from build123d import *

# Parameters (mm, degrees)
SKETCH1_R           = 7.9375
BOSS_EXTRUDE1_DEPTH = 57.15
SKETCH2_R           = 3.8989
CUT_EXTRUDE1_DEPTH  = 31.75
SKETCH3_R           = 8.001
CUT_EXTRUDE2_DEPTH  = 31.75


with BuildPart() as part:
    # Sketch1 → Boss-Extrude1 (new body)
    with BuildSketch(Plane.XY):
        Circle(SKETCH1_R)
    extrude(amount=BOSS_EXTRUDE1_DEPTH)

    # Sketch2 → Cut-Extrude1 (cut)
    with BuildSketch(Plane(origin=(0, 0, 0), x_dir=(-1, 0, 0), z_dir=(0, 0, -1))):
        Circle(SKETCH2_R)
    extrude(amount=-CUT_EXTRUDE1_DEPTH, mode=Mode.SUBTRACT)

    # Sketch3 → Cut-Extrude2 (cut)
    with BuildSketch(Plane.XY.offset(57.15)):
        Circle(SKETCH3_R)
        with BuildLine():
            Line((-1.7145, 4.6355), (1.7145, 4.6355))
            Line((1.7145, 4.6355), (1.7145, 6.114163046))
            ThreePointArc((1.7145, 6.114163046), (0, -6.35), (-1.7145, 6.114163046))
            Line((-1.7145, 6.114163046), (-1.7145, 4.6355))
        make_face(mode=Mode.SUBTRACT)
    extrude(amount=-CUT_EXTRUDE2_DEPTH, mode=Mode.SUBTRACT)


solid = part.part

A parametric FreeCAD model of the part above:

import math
import FreeCAD as App
import Part
import Sketcher
from FreeCAD import Vector
Q = App.Units.Quantity

doc = App.newDocument("Part")
body = doc.addObject("PartDesign::Body", "Body")

sketch1 = doc.addObject("Sketcher::SketchObject", "Sketch")
body.addObject(sketch1)
sketch1.AttachmentSupport = (doc.XY_Plane, [""])
sketch1.MapMode = "FlatFace"
sketch1.addGeometry(Part.Circle(Vector(0, 0, 0), Vector(0, 0, 1), 8), False)
sketch1.addConstraint([
    Sketcher.Constraint("Coincident", 0, 3, -1, 1),
    Sketcher.Constraint("Diameter", 0, Q("0.625 in")),
])
pad1 = doc.addObject("PartDesign::Pad", "Pad")
body.addObject(pad1)
pad1.Profile = sketch1
pad1.Length = Q("2.25 in")

sketch2 = doc.addObject("Sketcher::SketchObject", "Sketch001")
body.addObject(sketch2)
sketch2.AttachmentSupport = (doc.XY_Plane, [""])
sketch2.MapMode = "FlatFace"
sketch2.addGeometry(Part.Circle(Vector(0, 0, 0), Vector(0, 0, 1), 3.9), False)
sketch2.addConstraint([
    Sketcher.Constraint("Coincident", 0, 3, -1, 1),
    Sketcher.Constraint("Diameter", 0, Q("0.307 in")),
])
pocket1 = doc.addObject("PartDesign::Pocket", "Pocket")
body.addObject(pocket1)
pocket1.Profile = sketch2
pocket1.Length = Q("1.25 in")
pocket1.Reversed = True

sketch3 = doc.addObject("Sketcher::SketchObject", "Sketch002")
body.addObject(sketch3)
sketch3.AttachmentSupport = (doc.XY_Plane, [""])
sketch3.MapMode = "FlatFace"
sketch3.AttachmentOffset = App.Placement(Vector(0, 0, 2.25 * 25.4), App.Rotation())
sketch3.addGeometry([
    Part.Circle(Vector(0, 0, 0), Vector(0, 0, 1), 8),
    Part.LineSegment(Vector(-1.7, 6.1, 0), Vector(-1.7, 4.6, 0)),
    Part.LineSegment(Vector(-1.7, 4.6, 0), Vector(1.7, 4.6, 0)),
    Part.LineSegment(Vector(1.7, 4.6, 0), Vector(1.7, 6.1, 0)),
    Part.ArcOfCircle(Part.Circle(Vector(0, 0, 0), Vector(0, 0, 1), 6.3), math.radians(106), math.radians(434)),
], False)
sketch3.addConstraint([
    Sketcher.Constraint("Coincident", 1, 2, 2, 1),
    Sketcher.Constraint("Coincident", 2, 2, 3, 1),
    Sketcher.Constraint("Coincident", 3, 2, 4, 2),
    Sketcher.Constraint("Coincident", 4, 1, 1, 1),
    Sketcher.Constraint("Vertical", 1),
    Sketcher.Constraint("Horizontal", 2),
    Sketcher.Constraint("Vertical", 3),
    Sketcher.Constraint("Coincident", 0, 3, -1, 1),
    Sketcher.Constraint("Coincident", 4, 3, -1, 1),
    Sketcher.Constraint("Horizontal", 3, 2, 4, 1),
    Sketcher.Constraint("Diameter", 0, Q("0.63 in")),
    Sketcher.Constraint("Radius", 4, Q("0.25 in")),
    Sketcher.Constraint("DistanceX", 2, 1, 2, 2, Q("0.135 in")),
    Sketcher.Constraint("DistanceY", -1, 1, 1, 2, Q("0.1825 in")),
])
pocket2 = doc.addObject("PartDesign::Pocket", "Pocket001")
body.addObject(pocket2)
pocket2.Profile = sketch3
pocket2.Length = Q("1.25 in")

doc.recompute()
